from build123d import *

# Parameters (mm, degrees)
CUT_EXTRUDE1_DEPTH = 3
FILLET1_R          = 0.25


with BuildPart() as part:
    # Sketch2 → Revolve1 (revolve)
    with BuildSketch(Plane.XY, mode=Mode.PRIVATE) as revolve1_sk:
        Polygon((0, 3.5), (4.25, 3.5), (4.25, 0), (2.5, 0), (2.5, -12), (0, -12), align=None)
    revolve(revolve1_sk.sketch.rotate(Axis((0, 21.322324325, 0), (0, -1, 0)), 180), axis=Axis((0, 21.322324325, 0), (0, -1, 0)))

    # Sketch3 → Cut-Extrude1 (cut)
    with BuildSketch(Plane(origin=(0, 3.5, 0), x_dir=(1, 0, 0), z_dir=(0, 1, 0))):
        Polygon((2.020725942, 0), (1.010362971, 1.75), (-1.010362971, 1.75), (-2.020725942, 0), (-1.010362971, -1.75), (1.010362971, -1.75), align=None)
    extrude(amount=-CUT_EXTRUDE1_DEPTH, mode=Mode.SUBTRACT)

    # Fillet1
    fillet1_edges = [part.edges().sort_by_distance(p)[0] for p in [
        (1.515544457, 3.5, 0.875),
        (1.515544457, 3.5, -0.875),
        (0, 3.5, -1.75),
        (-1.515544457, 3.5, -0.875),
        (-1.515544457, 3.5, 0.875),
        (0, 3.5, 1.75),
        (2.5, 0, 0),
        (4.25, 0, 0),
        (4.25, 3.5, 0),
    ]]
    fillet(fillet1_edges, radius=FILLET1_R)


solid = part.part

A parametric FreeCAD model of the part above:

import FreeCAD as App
import Part
import Sketcher
Q = App.Units.Quantity


def edges_at(feature, points):
    """Names of the edges that pass closest to the given points."""
    edges = feature.Shape.Edges
    near = lambda p: min(range(len(edges)), key=lambda i: edges[i].distToShape(Part.Vertex(*p))[0])
    return sorted({f"Edge{near(p) + 1}" for p in points})


def add_polygon(sketch, points):
    """Adds a closed chain of lines whose ends are joined by coincident constraints."""
    first, n = sketch.GeometryCount, len(points)
    for a, b in zip(points, points[1:] + points[:1]):
        sketch.addGeometry(Part.LineSegment(App.Vector(*a, 0), App.Vector(*b, 0)), False)
    for i in range(n):
        sketch.addConstraint(Sketcher.Constraint("Coincident", first + i, 2, first + (i + 1) % n, 1))

doc = App.newDocument("Part")
params = doc.addObject("Spreadsheet::Sheet", "Params")
for row, (alias, value) in enumerate([
    ("sketch1_height", "12 mm"),
    ("sketch1_width", "2.5 mm"),
    ("sketch1_height2", "15.5 mm"),
    ("sketch1_width2", "4.25 mm"),
    ("revolution_angle", "360 deg"),
    ("pocket1_length", "3 mm"),
    ("fillet_radius", "0.25 mm"),
], start=1):
    params.set(f"A{row}", alias)
    params.set(f"B{row}", "=" + value)
    params.setAlias(f"B{row}", alias)

body = doc.addObject("PartDesign::Body", "Body")

# Sketch on XY plane
sketch1 = body.newObject("Sketcher::SketchObject", "Sketch")
sketch1.AttachmentSupport = (doc.getObject("XY_Plane"), [""])
sketch1.MapMode = "FlatFace"
add_polygon(sketch1, [(4.2, 3.5), (0, 3.5), (0, -12), (2.5, -12), (2.5, 0), (4.2, 0)])  # lines 0-5
sketch1.addConstraint([
    Sketcher.Constraint("Horizontal", 0),
    Sketcher.Constraint("Vertical", 1),
    Sketcher.Constraint("Horizontal", 2),
    Sketcher.Constraint("Vertical", 3),
    Sketcher.Constraint("Horizontal", 4),
    Sketcher.Constraint("Vertical", 5),
    Sketcher.Constraint("PointOnObject", 0, 2, -2),
    Sketcher.Constraint("PointOnObject", 3, 2, -1),
    Sketcher.Constraint("DistanceY", 3, 1, 3, 2, 12.0),
    Sketcher.Constraint("DistanceX", 2, 1, 2, 2, 2.5),
    Sketcher.Constraint("DistanceY", 1, 2, 1, 1, 15.5),
    Sketcher.Constraint("DistanceX", 0, 2, 0, 1, 4.25),
])
sketch1.setExpression("Constraints[14]", "Params.sketch1_height")
sketch1.setExpression("Constraints[15]", "Params.sketch1_width")
sketch1.setExpression("Constraints[16]", "Params.sketch1_height2")
sketch1.setExpression("Constraints[17]", "Params.sketch1_width2")
revolution = body.newObject("PartDesign::Revolution", "Revolution")
revolution.Profile = sketch1
revolution.ReferenceAxis = (sketch1, ["V_Axis"])
revolution.setExpression("Angle", "Params.revolution_angle")

# Sketch on XZ plane
sketch2 = body.newObject("Sketcher::SketchObject", "Sketch001")
sketch2.AttachmentSupport = (doc.getObject("XZ_Plane"), [""])
sketch2.MapMode = "FlatFace"
sketch2.AttachmentOffset = App.Placement(App.Vector(0, 0, -3.5), App.Rotation())
add_polygon(sketch2, [(2, 0), (1, -1.8), (-1, -1.8), (-2, 0), (-1, 1.8), (1, 1.8)])  # lines 0-5
sketch2.addConstraint([
    Sketcher.Constraint("Horizontal", 1),
    Sketcher.Constraint("Horizontal", 4),
    Sketcher.Constraint("Symmetric", 0, 2, 3, 2, -1, 1),
    Sketcher.Constraint("Symmetric", 2, 2, 5, 2, -1, 1),
    Sketcher.Constraint("PointOnObject", 2, 2, -1),
    Sketcher.Constraint("Parallel", 2, 5),
    Sketcher.Constraint("Vertical", 1, 2, 3, 2),
    Sketcher.Constraint("Angle", 0, Q("-120 deg")),
    Sketcher.Constraint("DistanceY", 1, 2, 3, 2, 3.5),
    Sketcher.Constraint("DistanceX", 1, 2, 1, 1, 2.020726),
])
pocket1 = body.newObject("PartDesign::Pocket", "Pocket")
pocket1.Profile = sketch2
pocket1.setExpression("Length", "Params.pocket1_length")
pocket1.Reversed = True
doc.recompute()

fillet = body.newObject("PartDesign::Fillet", "Fillet")
fillet.Base = (pocket1, edges_at(pocket1, [
    (1.516, 3.5, 0.875),
    (1.516, 3.5, -0.875),
    (0, 3.5, -1.75),
    (-1.516, 3.5, -0.875),
    (-1.516, 3.5, 0.875),
    (0, 3.5, 1.75),
    (2.5, 0, 0),
    (4.25, 0, 0),
    (4.25, 3.5, 0),
]))
fillet.setExpression("Radius", "Params.fillet_radius")

doc.recompute()
